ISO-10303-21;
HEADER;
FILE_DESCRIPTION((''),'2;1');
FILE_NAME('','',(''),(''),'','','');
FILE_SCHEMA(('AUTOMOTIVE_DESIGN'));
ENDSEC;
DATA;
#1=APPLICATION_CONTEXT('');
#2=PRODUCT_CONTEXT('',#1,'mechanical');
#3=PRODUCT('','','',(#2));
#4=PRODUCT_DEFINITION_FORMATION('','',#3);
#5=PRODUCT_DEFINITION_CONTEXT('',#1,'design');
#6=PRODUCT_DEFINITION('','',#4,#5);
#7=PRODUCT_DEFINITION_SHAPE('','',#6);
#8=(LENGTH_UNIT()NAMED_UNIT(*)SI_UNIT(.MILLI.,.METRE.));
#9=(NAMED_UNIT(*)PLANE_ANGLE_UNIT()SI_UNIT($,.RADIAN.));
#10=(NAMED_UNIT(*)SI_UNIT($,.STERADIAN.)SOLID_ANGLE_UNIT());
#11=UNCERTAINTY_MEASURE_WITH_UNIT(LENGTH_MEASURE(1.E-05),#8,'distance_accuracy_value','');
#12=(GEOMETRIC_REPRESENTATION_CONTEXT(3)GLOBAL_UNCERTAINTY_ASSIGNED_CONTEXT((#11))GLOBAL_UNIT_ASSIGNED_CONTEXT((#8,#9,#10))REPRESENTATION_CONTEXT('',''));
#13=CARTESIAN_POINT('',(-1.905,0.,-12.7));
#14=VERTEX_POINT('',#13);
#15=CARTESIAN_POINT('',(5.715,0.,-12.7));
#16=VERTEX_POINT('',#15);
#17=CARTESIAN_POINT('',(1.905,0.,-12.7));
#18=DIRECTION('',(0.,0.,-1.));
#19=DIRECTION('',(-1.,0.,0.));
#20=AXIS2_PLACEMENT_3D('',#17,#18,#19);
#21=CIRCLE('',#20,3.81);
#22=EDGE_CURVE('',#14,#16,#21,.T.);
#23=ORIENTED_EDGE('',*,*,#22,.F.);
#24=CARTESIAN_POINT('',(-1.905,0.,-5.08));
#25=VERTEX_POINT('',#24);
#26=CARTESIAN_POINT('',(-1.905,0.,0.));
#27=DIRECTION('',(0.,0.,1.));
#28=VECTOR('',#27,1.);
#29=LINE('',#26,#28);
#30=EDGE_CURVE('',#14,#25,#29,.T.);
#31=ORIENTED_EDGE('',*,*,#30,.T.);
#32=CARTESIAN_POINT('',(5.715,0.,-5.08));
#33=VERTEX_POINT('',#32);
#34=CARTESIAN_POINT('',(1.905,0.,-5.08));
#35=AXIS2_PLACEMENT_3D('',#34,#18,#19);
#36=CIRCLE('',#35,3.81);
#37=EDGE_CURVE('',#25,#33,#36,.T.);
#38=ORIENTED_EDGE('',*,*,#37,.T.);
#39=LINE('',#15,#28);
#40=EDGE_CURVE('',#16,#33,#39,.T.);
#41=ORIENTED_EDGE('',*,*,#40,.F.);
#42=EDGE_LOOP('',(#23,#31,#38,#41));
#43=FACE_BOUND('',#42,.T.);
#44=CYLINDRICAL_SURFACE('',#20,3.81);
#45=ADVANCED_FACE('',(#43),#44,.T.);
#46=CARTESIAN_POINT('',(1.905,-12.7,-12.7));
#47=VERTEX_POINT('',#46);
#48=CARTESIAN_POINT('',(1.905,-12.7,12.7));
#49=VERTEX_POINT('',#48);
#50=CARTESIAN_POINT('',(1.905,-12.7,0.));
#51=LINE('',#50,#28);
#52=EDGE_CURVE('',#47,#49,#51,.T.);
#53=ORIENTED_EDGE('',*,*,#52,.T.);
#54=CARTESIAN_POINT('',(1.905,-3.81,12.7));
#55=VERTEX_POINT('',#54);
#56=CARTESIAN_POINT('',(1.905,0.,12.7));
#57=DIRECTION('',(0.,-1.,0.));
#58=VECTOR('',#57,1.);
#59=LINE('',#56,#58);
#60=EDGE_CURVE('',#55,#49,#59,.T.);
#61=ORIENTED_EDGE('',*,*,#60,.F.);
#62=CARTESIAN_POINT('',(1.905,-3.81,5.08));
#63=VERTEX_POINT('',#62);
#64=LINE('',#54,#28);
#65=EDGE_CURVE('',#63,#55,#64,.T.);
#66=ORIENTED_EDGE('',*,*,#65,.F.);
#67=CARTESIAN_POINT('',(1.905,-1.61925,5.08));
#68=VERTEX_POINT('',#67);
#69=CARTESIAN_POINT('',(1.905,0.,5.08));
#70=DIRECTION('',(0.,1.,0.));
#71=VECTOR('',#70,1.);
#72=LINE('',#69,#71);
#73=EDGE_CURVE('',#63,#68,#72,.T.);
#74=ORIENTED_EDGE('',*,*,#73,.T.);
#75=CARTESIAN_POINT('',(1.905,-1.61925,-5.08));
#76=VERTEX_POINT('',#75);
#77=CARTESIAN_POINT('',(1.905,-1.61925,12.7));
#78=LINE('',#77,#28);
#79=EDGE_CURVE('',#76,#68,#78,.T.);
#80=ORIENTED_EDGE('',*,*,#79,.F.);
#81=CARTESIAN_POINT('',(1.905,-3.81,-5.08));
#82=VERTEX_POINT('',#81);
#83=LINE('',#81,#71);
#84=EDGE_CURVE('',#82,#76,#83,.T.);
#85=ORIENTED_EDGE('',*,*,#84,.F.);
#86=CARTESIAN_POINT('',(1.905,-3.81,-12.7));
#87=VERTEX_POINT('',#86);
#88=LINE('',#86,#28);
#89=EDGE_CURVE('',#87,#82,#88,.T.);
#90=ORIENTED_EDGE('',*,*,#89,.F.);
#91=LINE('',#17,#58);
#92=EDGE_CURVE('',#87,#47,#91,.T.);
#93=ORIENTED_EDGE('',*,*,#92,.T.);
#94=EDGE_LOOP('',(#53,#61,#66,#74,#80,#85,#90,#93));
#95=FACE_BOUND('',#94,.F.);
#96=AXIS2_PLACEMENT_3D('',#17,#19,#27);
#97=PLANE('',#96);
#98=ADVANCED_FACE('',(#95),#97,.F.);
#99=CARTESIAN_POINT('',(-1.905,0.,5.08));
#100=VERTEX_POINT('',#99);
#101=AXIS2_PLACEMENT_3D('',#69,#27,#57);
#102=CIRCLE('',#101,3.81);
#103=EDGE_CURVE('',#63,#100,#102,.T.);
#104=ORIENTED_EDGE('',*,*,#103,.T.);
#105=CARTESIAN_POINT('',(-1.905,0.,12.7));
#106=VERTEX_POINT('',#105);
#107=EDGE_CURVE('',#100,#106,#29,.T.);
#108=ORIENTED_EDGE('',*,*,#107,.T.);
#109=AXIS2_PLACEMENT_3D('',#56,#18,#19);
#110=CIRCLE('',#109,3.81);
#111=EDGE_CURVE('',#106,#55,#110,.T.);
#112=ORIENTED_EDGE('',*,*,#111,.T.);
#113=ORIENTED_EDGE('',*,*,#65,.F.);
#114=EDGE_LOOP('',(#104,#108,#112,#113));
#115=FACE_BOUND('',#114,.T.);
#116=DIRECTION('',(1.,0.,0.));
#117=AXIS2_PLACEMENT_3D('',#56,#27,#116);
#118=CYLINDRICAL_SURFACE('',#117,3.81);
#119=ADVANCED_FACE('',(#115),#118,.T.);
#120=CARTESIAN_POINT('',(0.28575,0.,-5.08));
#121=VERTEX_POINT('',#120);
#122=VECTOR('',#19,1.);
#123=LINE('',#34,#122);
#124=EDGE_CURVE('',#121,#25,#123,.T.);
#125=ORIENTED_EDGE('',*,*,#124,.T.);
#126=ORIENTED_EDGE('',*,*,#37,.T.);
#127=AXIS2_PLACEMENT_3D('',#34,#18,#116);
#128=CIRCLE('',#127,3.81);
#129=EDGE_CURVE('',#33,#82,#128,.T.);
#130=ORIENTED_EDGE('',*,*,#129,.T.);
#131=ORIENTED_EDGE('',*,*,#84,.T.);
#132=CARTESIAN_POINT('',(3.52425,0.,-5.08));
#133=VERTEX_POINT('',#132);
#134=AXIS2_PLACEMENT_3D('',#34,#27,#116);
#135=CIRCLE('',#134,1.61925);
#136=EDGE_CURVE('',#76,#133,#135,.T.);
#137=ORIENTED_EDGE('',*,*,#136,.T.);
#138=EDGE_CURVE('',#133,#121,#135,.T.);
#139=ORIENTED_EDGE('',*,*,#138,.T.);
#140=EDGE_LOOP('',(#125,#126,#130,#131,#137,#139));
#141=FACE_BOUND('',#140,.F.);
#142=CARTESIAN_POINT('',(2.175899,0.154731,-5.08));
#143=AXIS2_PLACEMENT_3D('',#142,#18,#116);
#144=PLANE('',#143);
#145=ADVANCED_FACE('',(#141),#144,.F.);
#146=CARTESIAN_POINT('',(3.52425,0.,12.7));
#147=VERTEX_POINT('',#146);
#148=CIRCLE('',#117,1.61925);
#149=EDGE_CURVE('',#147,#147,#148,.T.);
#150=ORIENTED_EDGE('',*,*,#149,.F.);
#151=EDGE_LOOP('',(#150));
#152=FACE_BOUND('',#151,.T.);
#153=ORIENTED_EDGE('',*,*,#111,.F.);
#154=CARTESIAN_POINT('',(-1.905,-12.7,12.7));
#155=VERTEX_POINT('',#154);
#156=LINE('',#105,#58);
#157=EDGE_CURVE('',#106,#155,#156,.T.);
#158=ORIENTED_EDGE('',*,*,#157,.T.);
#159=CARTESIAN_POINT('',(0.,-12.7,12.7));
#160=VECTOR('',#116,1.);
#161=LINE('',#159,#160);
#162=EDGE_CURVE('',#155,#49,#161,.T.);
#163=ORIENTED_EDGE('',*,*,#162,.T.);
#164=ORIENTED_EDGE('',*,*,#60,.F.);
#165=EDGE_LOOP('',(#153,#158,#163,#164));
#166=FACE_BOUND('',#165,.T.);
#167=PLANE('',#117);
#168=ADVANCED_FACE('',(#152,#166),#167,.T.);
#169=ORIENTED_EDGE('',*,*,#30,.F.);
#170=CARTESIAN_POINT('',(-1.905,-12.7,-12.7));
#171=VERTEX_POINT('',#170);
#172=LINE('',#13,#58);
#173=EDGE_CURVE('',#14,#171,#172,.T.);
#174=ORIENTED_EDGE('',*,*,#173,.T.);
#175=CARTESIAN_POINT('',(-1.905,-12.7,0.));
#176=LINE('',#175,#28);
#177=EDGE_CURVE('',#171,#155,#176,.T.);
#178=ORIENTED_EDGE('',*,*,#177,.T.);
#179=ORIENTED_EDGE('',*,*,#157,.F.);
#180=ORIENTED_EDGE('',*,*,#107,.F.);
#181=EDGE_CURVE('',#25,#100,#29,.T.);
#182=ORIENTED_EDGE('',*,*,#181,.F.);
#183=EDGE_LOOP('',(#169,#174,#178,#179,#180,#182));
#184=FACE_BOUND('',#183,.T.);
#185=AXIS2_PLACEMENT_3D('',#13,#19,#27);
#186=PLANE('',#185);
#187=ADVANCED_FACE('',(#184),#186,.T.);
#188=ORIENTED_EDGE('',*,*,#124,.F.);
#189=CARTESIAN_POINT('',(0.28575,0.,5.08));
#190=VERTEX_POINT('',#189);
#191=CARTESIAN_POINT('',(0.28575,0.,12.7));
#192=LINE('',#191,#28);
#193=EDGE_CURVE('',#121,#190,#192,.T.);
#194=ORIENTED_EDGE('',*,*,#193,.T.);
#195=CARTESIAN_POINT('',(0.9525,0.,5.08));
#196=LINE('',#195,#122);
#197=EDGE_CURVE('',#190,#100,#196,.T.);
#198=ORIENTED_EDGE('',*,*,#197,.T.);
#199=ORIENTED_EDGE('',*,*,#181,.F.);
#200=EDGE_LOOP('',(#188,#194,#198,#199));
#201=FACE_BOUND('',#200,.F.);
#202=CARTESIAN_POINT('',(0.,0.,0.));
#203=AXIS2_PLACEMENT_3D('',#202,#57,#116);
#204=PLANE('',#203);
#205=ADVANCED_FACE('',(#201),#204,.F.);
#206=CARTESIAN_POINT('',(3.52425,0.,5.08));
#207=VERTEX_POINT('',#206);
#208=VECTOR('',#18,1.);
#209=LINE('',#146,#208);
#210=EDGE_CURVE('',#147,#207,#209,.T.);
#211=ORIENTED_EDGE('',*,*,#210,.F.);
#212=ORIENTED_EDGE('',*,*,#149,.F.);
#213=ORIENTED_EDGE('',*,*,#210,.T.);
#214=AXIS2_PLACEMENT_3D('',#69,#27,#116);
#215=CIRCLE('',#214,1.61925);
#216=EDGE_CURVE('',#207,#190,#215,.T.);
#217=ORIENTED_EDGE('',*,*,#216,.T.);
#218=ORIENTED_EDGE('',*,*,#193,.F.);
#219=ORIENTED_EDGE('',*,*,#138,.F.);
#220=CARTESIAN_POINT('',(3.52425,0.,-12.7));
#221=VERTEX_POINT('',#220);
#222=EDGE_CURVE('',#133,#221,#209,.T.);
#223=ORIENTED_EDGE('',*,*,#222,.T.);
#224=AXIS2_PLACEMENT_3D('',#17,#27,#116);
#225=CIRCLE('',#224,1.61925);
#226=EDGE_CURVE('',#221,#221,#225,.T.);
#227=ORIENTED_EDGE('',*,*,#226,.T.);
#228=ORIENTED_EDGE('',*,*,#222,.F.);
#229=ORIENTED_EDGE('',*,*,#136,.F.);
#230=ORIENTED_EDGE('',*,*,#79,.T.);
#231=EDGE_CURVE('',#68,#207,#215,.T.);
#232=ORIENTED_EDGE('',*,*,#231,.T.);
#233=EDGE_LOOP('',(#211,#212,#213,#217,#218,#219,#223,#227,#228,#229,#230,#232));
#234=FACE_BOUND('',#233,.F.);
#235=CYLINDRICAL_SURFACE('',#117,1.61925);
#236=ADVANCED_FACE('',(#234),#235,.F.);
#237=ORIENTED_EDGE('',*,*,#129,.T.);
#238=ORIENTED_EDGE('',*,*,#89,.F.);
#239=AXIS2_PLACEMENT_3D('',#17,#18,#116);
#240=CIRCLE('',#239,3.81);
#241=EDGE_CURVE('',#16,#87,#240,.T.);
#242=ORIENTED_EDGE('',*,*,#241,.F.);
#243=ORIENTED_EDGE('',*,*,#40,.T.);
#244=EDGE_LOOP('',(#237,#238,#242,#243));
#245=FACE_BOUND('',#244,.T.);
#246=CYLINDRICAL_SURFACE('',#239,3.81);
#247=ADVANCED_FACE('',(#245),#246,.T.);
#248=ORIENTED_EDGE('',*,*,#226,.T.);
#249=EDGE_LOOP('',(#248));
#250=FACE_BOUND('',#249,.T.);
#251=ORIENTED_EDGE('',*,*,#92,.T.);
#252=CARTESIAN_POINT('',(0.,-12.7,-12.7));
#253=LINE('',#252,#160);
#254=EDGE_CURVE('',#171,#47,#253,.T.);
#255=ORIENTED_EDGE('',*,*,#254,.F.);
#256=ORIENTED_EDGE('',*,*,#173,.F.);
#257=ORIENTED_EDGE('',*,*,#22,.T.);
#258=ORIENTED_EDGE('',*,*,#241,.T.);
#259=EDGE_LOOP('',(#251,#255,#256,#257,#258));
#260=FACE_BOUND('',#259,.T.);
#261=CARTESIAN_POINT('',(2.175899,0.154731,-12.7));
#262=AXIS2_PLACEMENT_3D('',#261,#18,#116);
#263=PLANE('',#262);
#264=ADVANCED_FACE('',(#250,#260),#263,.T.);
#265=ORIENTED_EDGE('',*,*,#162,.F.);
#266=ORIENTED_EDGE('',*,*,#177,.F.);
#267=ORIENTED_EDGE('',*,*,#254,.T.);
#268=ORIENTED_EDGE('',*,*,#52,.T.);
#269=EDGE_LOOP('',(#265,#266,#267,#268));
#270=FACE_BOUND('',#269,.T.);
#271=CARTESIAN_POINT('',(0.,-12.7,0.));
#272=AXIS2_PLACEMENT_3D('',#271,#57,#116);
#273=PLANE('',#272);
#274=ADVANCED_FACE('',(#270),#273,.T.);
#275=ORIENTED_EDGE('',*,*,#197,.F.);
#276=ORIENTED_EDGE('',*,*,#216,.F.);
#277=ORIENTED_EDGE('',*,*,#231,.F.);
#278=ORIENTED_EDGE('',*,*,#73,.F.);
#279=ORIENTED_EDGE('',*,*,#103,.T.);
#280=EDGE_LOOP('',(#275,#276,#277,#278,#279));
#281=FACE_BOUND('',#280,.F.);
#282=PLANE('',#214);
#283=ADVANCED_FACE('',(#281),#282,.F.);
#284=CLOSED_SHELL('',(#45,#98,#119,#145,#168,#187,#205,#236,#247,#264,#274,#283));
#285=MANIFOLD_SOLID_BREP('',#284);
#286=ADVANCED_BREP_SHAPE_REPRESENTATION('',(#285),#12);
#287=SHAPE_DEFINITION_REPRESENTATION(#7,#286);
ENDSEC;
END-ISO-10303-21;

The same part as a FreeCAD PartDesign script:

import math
import FreeCAD as App
import Part
import Sketcher
from FreeCAD import Vector
Q = App.Units.Quantity


def add_polygon(sketch, points):
    """Adds a closed chain of lines whose ends are joined by coincident constraints."""
    first, n = sketch.GeometryCount, len(points)
    for a, b in zip(points, points[1:] + points[:1]):
        sketch.addGeometry(Part.LineSegment(App.Vector(*a, 0), App.Vector(*b, 0)), False)
    for i in range(n):
        sketch.addConstraint(Sketcher.Constraint("Coincident", first + i, 2, first + (i + 1) % n, 1))

doc = App.newDocument("Part")
params = doc.addObject("Spreadsheet::Sheet", "Params")
for row, (alias, value) in enumerate([
    ("sketch1_height", "1 in"),
    ("sketch1_width", "0.15 in"),
    ("pad1_length", "0.5 in"),
    ("sketch2_diameter", "0.3 in"),
    ("pad2_length", "0.3 in"),
    ("sketch3_diameter", "0.3 in"),
    ("pad3_length", "0.3 in"),
    ("sketch4_radius", "0.15 in"),
    ("pad4_length", "0.3 in"),
    ("pocket1_length", "1 in"),
], start=1):
    params.set(f"A{row}", alias)
    params.set(f"B{row}", "=" + value)
    params.setAlias(f"B{row}", alias)

body = doc.addObject("PartDesign::Body", "Body")

sketch1 = body.newObject("Sketcher::SketchObject", "Sketch")
sketch1.AttachmentSupport = (doc.getObject("XZ_Plane"), [""])
sketch1.MapMode = "FlatFace"
add_polygon(sketch1, [(-1.9, 12.7), (-1.9, -12.7), (1.9, -12.7), (1.9, 12.7)])
sketch1.addConstraint([
    Sketcher.Constraint("Vertical", 0),
    Sketcher.Constraint("Horizontal", 1),
    Sketcher.Constraint("Vertical", 2),
    Sketcher.Constraint("Horizontal", 3),
    Sketcher.Constraint("Symmetric", 0, 2, 2, 2, -1, 1),
    Sketcher.Constraint("DistanceY", 0, 2, 0, 1, Q("1 in")),
    Sketcher.Constraint("DistanceX", 1, 1, 1, 2, Q("0.15 in")),
])
sketch1.setExpression("Constraints[9]", "Params.sketch1_height")
sketch1.setExpression("Constraints[10]", "Params.sketch1_width")
pad1 = body.newObject("PartDesign::Pad", "Pad")
pad1.Profile = sketch1
pad1.setExpression("Length", "Params.pad1_length")

sketch2 = body.newObject("Sketcher::SketchObject", "Sketch001")
sketch2.AttachmentSupport = (doc.getObject("XY_Plane"), [""])
sketch2.MapMode = "FlatFace"
sketch2.AttachmentOffset = App.Placement(Vector(0, 0, 0.5 * 25.4), App.Rotation())
sketch2.addGeometry(Part.Circle(Vector(1.9, 0, 0), Vector(0, 0, 1), 3.8), False)
sketch2.addConstraint([
    Sketcher.Constraint("PointOnObject", 0, 3, -1),
    Sketcher.Constraint("Diameter", 0, Q("0.3 in")),
    Sketcher.Constraint("DistanceX", -1, 1, 0, 3, Q("0.075 in")),
])
sketch2.setExpression("Constraints[1]", "Params.sketch2_diameter")
pad2 = body.newObject("PartDesign::Pad", "Pad001")
pad2.Profile = sketch2
pad2.setExpression("Length", "Params.pad2_length")
pad2.Reversed = True

sketch3 = body.newObject("Sketcher::SketchObject", "Sketch002")
sketch3.AttachmentSupport = (doc.getObject("XY_Plane"), [""])
sketch3.MapMode = "FlatFace"
sketch3.AttachmentOffset = App.Placement(Vector(0, 0, 0.5 * 25.4), App.Rotation())
sketch3.addGeometry(Part.Circle(Vector(1.9, 0, 0), Vector(0, 0, 1), 3.8), False)
sketch3.addConstraint([
    Sketcher.Constraint("PointOnObject", 0, 3, -1),
    Sketcher.Constraint("Diameter", 0, Q("0.3 in")),
    Sketcher.Constraint("DistanceX", -1, 1, 0, 3, Q("0.075 in")),
])
sketch3.setExpression("Constraints[1]", "Params.sketch3_diameter")
pad3 = body.newObject("PartDesign::Pad", "Pad002")
pad3.Profile = sketch3
pad3.setExpression("Length", "Params.pad3_length")
pad3.Reversed = True

sketch4 = body.newObject("Sketcher::SketchObject", "Sketch003")
sketch4.AttachmentSupport = (doc.getObject("XY_Plane"), [""])
sketch4.MapMode = "FlatFace"
sketch4.AttachmentOffset = App.Placement(Vector(0, 0, -0.5 * 25.4), App.Rotation())
sketch4.addGeometry([
    Part.LineSegment(Vector(1.9, 0, 0), Vector(-1.9, 0, 0)),
    Part.ArcOfCircle(Part.Circle(Vector(1.9, 0, 0), Vector(0, 0, 1), 3.8), math.radians(0), math.radians(180)),
    Part.ArcOfCircle(Part.Circle(Vector(1.9, 0, 0), Vector(0, 0, 1), 3.8), math.radians(-90), math.radians(0)),
    Part.LineSegment(Vector(1.9, -3.8, 0), Vector(1.9, 0, 0)),
], False)
sketch4.addConstraint([
    Sketcher.Constraint("Coincident", 0, 2, 1, 2),
    Sketcher.Constraint("Tangent", 1, 1, 2, 2),
    Sketcher.Constraint("Coincident", 2, 1, 3, 1),
    Sketcher.Constraint("Coincident", 3, 2, 0, 1),
    Sketcher.Constraint("Horizontal", 0),
    Sketcher.Constraint("Vertical", 3),
    Sketcher.Constraint("Coincident", 3, 2, 1, 3),
    Sketcher.Constraint("Equal", 1, 2),
    Sketcher.Constraint("Symmetric", 0, 2, 3, 2, -1, 1),
    Sketcher.Constraint("PointOnObject", 1, 1, -1),
    Sketcher.Constraint("Radius", 1, Q("0.15 in")),
])
sketch4.setExpression("Constraints[10]", "Params.sketch4_radius")
pad4 = body.newObject("PartDesign::Pad", "Pad003")
pad4.Profile = sketch4
pad4.setExpression("Length", "Params.pad4_length")

sketch5 = body.newObject("Sketcher::SketchObject", "Sketch004")
sketch5.AttachmentSupport = (doc.getObject("XY_Plane"), [""])
sketch5.MapMode = "FlatFace"
sketch5.AttachmentOffset = App.Placement(Vector(0, 0, 0.5 * 25.4), App.Rotation())
sketch5.addGeometry(Part.Circle(Vector(1.9, 0, 0), Vector(0, 0, 1), 1.6), False)
sketch5.addConstraint([
    Sketcher.Constraint("PointOnObject", 0, 3, -1),
    Sketcher.Constraint("Diameter", 0, Q("0.1275 in")),
    Sketcher.Constraint("DistanceX", -1, 1, 0, 3, Q("0.075 in")),
])
pocket1 = body.newObject("PartDesign::Pocket", "Pocket")
pocket1.Profile = sketch5
pocket1.setExpression("Length", "Params.pocket1_length")

doc.recompute()
